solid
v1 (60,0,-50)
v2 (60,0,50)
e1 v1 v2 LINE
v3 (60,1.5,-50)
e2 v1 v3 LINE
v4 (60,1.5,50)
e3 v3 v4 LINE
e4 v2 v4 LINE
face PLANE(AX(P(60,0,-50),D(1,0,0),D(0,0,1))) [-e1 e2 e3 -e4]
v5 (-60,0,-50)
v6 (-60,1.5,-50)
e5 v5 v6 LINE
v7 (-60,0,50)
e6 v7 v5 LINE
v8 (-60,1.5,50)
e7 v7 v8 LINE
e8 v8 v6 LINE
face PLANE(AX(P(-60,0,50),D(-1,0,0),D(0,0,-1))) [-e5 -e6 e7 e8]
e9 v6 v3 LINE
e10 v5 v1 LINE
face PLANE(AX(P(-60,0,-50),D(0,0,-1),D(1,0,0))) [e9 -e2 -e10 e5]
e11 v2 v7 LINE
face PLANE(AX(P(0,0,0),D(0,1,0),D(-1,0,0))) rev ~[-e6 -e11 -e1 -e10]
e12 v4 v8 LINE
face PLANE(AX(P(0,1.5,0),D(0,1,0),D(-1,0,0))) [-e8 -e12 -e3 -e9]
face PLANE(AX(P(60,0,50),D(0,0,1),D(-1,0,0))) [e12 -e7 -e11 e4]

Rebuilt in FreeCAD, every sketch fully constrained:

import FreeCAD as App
import Part
import Sketcher
from FreeCAD import Vector

doc = App.newDocument("Part")
body = doc.addObject("PartDesign::Body", "Body")

sketch1 = body.newObject("Sketcher::SketchObject", "Sketch")
sketch1.AttachmentSupport = (doc.getObject("XZ_Plane"), [""])
sketch1.MapMode = "FlatFace"
sketch1.addGeometry([
    Part.LineSegment(Vector(60, -50, 0), Vector(-60, -50, 0)),
    Part.LineSegment(Vector(-60, -50, 0), Vector(-60, 50, 0)),
    Part.LineSegment(Vector(-60, 50, 0), Vector(60, 50, 0)),
    Part.LineSegment(Vector(60, 50, 0), Vector(60, -50, 0)),
], False)
sketch1.addConstraint([
    Sketcher.Constraint("Coincident", 0, 2, 1, 1),
    Sketcher.Constraint("Coincident", 1, 2, 2, 1),
    Sketcher.Constraint("Coincident", 2, 2, 3, 1),
    Sketcher.Constraint("Coincident", 3, 2, 0, 1),
    Sketcher.Constraint("Horizontal", 0),
    Sketcher.Constraint("Vertical", 1),
    Sketcher.Constraint("Horizontal", 2),
    Sketcher.Constraint("Vertical", 3),
    Sketcher.Constraint("Symmetric", 0, 2, 2, 2, -1, 1),
    Sketcher.Constraint("DistanceX", 0, 2, 0, 1, 120.0),
    Sketcher.Constraint("DistanceY", 1, 1, 1, 2, 100.0),
])
pad1 = body.newObject("PartDesign::Pad", "Pad")
pad1.Profile = sketch1
pad1.Length = 1.5
pad1.Reversed = True

doc.recompute()
